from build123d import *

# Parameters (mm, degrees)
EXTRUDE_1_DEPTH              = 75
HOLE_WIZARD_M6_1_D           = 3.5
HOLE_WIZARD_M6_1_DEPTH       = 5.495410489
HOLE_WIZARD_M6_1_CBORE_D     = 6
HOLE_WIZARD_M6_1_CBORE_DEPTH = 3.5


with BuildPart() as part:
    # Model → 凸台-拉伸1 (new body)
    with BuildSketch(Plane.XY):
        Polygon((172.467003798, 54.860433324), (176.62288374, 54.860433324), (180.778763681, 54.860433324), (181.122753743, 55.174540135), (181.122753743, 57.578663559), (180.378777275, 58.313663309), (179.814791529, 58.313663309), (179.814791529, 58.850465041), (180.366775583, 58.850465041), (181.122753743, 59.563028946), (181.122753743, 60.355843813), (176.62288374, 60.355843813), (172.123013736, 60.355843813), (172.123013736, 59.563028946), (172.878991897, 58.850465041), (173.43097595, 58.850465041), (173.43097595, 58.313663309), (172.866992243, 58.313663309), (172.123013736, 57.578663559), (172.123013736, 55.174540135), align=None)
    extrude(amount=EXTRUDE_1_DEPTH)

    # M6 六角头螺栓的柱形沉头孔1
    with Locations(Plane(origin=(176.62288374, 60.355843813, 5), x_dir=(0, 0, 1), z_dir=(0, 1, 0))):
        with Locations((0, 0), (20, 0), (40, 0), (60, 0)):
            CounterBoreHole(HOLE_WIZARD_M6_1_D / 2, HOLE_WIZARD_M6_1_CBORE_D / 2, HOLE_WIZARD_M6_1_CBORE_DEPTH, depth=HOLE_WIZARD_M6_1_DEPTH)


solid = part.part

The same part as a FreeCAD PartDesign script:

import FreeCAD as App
import Part
import Sketcher
from FreeCAD import Vector
Q = App.Units.Quantity


def add_polygon(sketch, points):
    """Adds a closed chain of lines whose ends are joined by coincident constraints."""
    first, n = sketch.GeometryCount, len(points)
    for a, b in zip(points, points[1:] + points[:1]):
        sketch.addGeometry(Part.LineSegment(App.Vector(*a, 0), App.Vector(*b, 0)), False)
    for i in range(n):
        sketch.addConstraint(Sketcher.Constraint("Coincident", first + i, 2, first + (i + 1) % n, 1))

doc = App.newDocument("Part")
body = doc.addObject("PartDesign::Body", "Body")

# Sketch on XY plane
sketch1 = doc.addObject("Sketcher::SketchObject", "Sketch")
body.addObject(sketch1)
sketch1.AttachmentSupport = (doc.XY_Plane, [""])
sketch1.MapMode = "FlatFace"
add_polygon(sketch1, [(172.47, 54.86), (180.78, 54.86), (181.12, 55.17), (181.12, 57.58), (180.38, 58.31), (179.81, 58.31), (179.81, 58.85), (180.37, 58.85), (181.12, 59.56), (181.12, 60.36), (172.12, 60.36), (172.12, 59.56), (172.88, 58.85), (173.43, 58.85), (173.43, 58.31), (172.87, 58.31), (172.12, 57.58), (172.12, 55.17)])  # lines 0-17
sketch1.addConstraint([
    Sketcher.Constraint("Horizontal", 0),
    Sketcher.Constraint("Vertical", 2),
    Sketcher.Constraint("Horizontal", 4),
    Sketcher.Constraint("Vertical", 5),
    Sketcher.Constraint("Horizontal", 6),
    Sketcher.Constraint("Vertical", 8),
    Sketcher.Constraint("Horizontal", 9),
    Sketcher.Constraint("Vertical", 10),
    Sketcher.Constraint("Horizontal", 12),
    Sketcher.Constraint("Vertical", 13),
    Sketcher.Constraint("Horizontal", 14),
    Sketcher.Constraint("Vertical", 16),
    Sketcher.Constraint("Horizontal", 7, 2, 10, 2),
    Sketcher.Constraint("Horizontal", 6, 2, 11, 2),
    Sketcher.Constraint("Horizontal", 4, 2, 13, 2),
    Sketcher.Constraint("Horizontal", 2, 2, 15, 2),
    Sketcher.Constraint("Horizontal", 1, 2, 16, 2),
    Sketcher.Constraint("Vertical", 2, 2, 7, 2),
    Sketcher.Constraint("Vertical", 10, 2, 15, 2),
    Sketcher.Constraint("Equal", 6, 12),
    Sketcher.Constraint("Equal", 7, 11),
    Sketcher.Constraint("Equal", 3, 15),
    Sketcher.Constraint("Equal", 1, 17),
    Sketcher.Constraint("DistanceY", 5, 1, 5, 2, Q("0.536802 mm")),
    Sketcher.Constraint("DistanceY", 2, 2, 3, 2, Q("0.735 mm")),
    Sketcher.Constraint("DistanceX", 6, 2, 3, 2, Q("0.012002 mm")),
    Sketcher.Constraint("DistanceX", 0, 1, 0, 2, Q("8.31176 mm")),
    Sketcher.Constraint("DistanceX", 9, 2, 9, 1, Q("8.99974 mm")),
    Sketcher.Constraint("DistanceX", 11, 2, 5, 2, Q("6.9358 mm")),
    Sketcher.Constraint("Distance", 7, Q("1.03887 mm")),
    Sketcher.Constraint("DistanceX", 4, 2, 4, 1, Q("0.563986 mm")),
    Sketcher.Constraint("DistanceY", 2, 1, 2, 2, Q("2.404123 mm")),
    Sketcher.Constraint("DistanceY", 8, 1, 8, 2, Q("0.792815 mm")),
    Sketcher.Constraint("DistanceY", -1, 1, 1, 2, Q("55.17454 mm")),
    Sketcher.Constraint("DistanceX", -1, 1, 4, 2, Q("179.814792 mm")),
    Sketcher.Constraint("DistanceY", 0, 2, 2, 2, Q("2.71823 mm")),
])
pad1 = doc.addObject("PartDesign::Pad", "Pad")
body.addObject(pad1)
pad1.Profile = sketch1
pad1.Length = 75

# Sketch on XZ plane
sketch2 = doc.addObject("Sketcher::SketchObject", "Sketch001")
body.addObject(sketch2)
sketch2.AttachmentSupport = (doc.XZ_Plane, [""])
sketch2.MapMode = "FlatFace"
sketch2.AttachmentOffset = App.Placement(Vector(0, 0, -60.355844), App.Rotation())
sketch2.addGeometry([
    Part.Circle(Vector(176.6, 5, 0), Vector(0, 0, 1), 1.8),
    Part.Circle(Vector(176.6, 25, 0), Vector(0, 0, 1), 1.8),
    Part.Circle(Vector(176.6, 45, 0), Vector(0, 0, 1), 1.8),
    Part.Circle(Vector(176.6, 65, 0), Vector(0, 0, 1), 1.8),
], False)
sketch2.addConstraint([
    Sketcher.Constraint("Equal", 0, 1),
    Sketcher.Constraint("Equal", 1, 2),
    Sketcher.Constraint("Equal", 2, 3),
    Sketcher.Constraint("Vertical", 0, 3, 1, 3),
    Sketcher.Constraint("Vertical", 1, 3, 2, 3),
    Sketcher.Constraint("Vertical", 2, 3, 3, 3),
    Sketcher.Constraint("Diameter", 0, Q("3.5 mm")),
    Sketcher.Constraint("DistanceY", -1, 1, 0, 3, Q("5 mm")),
    Sketcher.Constraint("DistanceY", -1, 1, 1, 3, Q("25 mm")),
    Sketcher.Constraint("DistanceY", -1, 1, 2, 3, Q("45 mm")),
    Sketcher.Constraint("DistanceY", -1, 1, 3, 3, Q("65 mm")),
    Sketcher.Constraint("DistanceX", -1, 1, 0, 3, Q("176.622884 mm")),
])
doc.recompute()
hole = doc.addObject("PartDesign::Hole", "Hole")
body.addObject(hole)
hole.Profile = sketch2
hole.ThreadType = "None"
hole.Diameter = 3.5
hole.DepthType = "Dimension"
hole.Depth = 5.49541
hole.DrillPoint = "Flat"
hole.HoleCutType = "Counterbore"
hole.HoleCutDiameter = 6
hole.HoleCutDepth = 3.5
hole.Reversed = True

doc.recompute()
